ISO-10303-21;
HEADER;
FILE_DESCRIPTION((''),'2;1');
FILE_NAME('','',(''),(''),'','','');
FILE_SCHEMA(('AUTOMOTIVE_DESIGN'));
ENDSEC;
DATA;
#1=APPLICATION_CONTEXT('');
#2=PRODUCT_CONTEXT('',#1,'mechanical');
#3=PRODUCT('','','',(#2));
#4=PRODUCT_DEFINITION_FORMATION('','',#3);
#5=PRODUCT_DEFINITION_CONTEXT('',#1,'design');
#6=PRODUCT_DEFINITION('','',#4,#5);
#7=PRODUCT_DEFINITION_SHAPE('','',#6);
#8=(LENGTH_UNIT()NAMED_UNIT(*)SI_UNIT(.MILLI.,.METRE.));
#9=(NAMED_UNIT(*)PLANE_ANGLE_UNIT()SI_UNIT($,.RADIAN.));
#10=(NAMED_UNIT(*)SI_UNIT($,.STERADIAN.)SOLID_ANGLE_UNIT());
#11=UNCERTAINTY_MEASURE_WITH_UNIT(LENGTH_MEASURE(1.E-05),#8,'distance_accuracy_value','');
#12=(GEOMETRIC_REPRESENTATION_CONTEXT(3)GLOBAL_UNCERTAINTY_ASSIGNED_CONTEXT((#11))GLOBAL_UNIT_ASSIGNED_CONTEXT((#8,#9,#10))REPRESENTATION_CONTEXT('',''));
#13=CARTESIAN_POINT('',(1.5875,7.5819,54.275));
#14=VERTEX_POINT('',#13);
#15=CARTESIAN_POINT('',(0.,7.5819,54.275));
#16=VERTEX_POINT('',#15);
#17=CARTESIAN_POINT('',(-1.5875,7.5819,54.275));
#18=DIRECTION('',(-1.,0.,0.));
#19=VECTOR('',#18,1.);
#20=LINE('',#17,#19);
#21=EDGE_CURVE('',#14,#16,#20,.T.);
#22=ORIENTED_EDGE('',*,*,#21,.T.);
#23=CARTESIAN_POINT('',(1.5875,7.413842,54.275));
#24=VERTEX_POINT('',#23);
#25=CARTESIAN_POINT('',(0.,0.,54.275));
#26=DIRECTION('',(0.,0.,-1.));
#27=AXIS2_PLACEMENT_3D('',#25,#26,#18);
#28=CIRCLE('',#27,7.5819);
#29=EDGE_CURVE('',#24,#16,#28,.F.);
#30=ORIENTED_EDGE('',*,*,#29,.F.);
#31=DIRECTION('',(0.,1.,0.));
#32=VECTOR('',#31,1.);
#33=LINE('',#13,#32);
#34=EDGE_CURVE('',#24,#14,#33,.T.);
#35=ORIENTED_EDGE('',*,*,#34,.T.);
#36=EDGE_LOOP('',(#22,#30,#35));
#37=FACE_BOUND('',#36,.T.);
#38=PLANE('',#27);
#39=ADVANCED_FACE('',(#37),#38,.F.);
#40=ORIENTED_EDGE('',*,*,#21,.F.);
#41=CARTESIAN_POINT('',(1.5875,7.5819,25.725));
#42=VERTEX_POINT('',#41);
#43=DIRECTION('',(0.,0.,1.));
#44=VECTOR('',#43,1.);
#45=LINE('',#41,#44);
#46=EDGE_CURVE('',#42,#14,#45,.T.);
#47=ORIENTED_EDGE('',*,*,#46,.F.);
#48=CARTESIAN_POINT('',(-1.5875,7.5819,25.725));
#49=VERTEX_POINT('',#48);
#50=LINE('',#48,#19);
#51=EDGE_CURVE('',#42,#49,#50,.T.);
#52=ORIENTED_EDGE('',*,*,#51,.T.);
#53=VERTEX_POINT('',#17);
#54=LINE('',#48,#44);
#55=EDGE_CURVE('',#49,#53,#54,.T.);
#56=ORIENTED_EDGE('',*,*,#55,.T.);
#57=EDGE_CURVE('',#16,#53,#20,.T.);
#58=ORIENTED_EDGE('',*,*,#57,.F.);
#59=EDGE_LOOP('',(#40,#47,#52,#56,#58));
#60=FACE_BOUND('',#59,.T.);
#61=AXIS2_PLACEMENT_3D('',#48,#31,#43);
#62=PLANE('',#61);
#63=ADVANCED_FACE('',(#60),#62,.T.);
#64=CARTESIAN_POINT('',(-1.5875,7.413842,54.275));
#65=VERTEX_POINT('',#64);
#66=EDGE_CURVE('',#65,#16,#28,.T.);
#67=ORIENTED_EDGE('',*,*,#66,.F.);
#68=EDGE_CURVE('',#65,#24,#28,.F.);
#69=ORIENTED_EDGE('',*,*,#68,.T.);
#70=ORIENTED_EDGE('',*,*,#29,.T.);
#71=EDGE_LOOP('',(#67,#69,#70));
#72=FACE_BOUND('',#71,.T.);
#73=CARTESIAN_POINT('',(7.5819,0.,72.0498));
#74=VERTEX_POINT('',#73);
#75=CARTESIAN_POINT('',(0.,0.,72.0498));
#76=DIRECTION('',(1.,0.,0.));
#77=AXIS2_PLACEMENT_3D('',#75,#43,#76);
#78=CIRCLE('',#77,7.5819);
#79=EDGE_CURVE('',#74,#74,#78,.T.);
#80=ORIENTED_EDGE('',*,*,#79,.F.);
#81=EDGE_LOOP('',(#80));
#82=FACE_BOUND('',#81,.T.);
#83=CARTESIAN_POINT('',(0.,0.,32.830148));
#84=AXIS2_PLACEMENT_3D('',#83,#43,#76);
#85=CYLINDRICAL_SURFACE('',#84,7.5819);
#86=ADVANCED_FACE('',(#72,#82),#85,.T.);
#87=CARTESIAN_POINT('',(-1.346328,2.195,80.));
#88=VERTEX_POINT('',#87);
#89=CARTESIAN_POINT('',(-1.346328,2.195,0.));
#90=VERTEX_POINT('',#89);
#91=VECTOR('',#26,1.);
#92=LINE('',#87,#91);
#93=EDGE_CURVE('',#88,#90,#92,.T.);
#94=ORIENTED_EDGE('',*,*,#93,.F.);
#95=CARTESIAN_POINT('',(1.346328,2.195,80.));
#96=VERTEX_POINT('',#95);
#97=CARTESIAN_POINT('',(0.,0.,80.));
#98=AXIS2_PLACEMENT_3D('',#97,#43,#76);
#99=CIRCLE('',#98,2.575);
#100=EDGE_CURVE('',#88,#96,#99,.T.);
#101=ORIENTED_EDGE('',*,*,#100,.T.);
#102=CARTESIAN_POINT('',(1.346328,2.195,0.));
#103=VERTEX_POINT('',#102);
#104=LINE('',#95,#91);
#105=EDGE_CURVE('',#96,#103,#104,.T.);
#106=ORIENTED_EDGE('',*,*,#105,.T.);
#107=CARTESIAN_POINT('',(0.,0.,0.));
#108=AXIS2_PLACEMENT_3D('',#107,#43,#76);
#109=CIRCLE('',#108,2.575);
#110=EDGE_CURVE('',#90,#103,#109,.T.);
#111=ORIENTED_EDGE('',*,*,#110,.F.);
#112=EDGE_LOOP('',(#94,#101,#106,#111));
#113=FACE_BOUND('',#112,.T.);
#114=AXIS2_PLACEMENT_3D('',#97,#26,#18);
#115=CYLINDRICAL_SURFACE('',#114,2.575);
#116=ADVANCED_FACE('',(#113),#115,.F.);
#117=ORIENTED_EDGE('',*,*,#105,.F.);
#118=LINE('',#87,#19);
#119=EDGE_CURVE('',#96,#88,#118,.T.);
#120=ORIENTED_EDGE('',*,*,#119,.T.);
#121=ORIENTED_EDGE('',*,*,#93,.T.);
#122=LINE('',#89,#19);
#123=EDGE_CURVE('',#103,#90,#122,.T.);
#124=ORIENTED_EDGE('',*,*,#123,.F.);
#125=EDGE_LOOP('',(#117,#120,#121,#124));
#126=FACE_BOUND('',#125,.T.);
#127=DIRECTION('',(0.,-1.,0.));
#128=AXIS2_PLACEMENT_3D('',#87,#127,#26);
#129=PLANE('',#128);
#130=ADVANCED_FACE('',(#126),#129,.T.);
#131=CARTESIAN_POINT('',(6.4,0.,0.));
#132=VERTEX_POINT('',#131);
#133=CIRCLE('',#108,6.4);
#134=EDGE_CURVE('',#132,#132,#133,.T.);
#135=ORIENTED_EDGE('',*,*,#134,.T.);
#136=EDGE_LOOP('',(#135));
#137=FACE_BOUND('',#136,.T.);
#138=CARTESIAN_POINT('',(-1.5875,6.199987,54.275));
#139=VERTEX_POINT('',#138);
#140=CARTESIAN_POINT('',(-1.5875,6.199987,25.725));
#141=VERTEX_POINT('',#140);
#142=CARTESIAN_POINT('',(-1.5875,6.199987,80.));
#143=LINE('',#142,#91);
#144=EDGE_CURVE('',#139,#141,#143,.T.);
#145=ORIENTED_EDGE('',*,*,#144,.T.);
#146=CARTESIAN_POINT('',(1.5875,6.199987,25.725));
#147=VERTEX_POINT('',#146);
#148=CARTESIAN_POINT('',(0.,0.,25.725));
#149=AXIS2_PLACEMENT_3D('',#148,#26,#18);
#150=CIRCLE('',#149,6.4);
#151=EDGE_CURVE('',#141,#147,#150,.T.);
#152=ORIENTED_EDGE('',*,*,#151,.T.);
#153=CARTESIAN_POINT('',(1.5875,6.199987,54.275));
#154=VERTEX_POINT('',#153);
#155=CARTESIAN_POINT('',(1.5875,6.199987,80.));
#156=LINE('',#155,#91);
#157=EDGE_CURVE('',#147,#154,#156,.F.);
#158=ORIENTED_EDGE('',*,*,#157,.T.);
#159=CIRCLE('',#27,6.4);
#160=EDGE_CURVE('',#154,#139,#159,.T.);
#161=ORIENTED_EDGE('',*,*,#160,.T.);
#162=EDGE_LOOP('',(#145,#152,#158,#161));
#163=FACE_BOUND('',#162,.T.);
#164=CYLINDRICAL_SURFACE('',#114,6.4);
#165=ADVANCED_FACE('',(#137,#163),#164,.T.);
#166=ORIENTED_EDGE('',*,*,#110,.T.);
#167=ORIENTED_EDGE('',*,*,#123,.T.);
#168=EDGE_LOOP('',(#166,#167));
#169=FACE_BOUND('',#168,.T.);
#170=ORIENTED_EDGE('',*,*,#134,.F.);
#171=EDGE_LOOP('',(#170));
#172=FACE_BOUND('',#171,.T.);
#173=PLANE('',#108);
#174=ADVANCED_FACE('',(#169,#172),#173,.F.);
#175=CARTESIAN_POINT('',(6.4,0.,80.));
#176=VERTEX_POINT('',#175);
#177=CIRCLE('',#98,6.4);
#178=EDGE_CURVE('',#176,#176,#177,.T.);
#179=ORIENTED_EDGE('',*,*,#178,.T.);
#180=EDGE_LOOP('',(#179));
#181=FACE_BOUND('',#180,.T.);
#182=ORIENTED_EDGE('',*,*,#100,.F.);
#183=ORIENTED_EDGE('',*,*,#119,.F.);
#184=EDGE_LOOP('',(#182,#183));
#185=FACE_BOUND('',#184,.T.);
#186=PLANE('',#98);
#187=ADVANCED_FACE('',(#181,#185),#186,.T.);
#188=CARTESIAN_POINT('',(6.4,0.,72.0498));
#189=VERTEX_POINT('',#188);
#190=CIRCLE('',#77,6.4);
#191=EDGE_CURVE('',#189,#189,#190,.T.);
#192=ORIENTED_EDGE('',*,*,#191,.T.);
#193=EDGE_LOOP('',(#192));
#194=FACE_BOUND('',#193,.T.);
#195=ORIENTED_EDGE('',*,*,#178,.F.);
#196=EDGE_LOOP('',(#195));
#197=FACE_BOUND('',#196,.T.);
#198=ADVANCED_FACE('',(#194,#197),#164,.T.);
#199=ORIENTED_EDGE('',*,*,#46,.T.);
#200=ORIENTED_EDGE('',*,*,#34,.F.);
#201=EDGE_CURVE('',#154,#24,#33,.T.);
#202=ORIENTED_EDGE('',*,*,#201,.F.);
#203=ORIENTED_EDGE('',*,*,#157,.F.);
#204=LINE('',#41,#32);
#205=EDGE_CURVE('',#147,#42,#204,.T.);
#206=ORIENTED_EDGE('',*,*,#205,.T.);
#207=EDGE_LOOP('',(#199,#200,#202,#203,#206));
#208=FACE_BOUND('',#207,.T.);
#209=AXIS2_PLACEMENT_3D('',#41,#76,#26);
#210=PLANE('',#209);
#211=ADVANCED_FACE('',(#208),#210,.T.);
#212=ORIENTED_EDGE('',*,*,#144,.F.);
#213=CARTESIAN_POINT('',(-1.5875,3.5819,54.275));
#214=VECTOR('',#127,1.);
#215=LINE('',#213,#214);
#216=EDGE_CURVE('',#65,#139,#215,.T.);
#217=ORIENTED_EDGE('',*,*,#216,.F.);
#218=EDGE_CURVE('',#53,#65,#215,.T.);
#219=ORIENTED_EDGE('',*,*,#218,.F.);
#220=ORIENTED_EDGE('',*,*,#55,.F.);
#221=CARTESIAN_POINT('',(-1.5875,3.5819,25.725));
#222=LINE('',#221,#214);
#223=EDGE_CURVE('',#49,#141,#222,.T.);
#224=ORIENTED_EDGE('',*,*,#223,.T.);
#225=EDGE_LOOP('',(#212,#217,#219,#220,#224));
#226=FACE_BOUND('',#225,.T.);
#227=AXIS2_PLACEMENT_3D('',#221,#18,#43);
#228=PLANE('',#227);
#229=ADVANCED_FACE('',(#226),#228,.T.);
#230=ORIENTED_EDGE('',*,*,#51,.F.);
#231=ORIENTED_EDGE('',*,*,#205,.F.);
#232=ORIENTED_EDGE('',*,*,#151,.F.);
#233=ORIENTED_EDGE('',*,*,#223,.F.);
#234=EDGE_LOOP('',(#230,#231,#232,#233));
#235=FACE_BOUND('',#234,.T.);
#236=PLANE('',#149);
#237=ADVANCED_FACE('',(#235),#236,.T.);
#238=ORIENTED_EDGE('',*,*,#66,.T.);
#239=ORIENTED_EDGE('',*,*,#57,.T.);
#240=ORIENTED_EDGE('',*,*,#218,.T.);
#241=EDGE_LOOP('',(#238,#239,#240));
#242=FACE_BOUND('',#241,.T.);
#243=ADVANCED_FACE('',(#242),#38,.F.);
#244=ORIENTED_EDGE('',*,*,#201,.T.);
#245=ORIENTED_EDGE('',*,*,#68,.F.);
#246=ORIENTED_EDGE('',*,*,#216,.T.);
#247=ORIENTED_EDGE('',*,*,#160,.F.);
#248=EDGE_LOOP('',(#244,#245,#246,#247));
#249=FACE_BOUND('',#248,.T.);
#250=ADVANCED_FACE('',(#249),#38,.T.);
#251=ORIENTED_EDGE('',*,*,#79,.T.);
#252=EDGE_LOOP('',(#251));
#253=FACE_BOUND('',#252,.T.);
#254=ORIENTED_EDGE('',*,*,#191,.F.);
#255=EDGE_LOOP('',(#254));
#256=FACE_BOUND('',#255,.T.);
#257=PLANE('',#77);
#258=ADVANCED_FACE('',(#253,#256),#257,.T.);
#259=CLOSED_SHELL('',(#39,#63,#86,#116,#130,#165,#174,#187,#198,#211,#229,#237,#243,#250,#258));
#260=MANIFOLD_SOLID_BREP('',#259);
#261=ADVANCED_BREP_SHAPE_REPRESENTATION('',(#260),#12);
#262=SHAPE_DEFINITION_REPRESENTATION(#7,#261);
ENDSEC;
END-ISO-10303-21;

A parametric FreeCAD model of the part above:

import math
import FreeCAD as App
import Part
import Sketcher
from FreeCAD import Vector


def add_polygon(sketch, points):
    """Adds a closed chain of lines whose ends are joined by coincident constraints."""
    first, n = sketch.GeometryCount, len(points)
    for a, b in zip(points, points[1:] + points[:1]):
        sketch.addGeometry(Part.LineSegment(App.Vector(*a, 0), App.Vector(*b, 0)), False)
    for i in range(n):
        sketch.addConstraint(Sketcher.Constraint("Coincident", first + i, 2, first + (i + 1) % n, 1))

doc = App.newDocument("Part")
body = doc.addObject("PartDesign::Body", "Body")

sketch1 = body.newObject("Sketcher::SketchObject", "Sketch")
sketch1.AttachmentSupport = (doc.getObject("XY_Plane"), [""])
sketch1.MapMode = "FlatFace"
sketch1.addGeometry(Part.Circle(Vector(0, 0, 0), Vector(0, 0, 1), 6.4), False)
sketch1.addGeometry(Part.ArcOfCircle(Part.Circle(Vector(0, 0, 0), Vector(0, 0, 1), 2.6), math.radians(122), math.radians(418)), False)
sketch1.addGeometry(Part.LineSegment(Vector(-1.3, 2.2, 0), Vector(1.3, 2.2, 0)), False)
sketch1.addConstraint(Sketcher.Constraint("Coincident", 1, 1, 2, 1))
sketch1.addConstraint(Sketcher.Constraint("Coincident", 2, 2, 1, 2))
sketch1.addConstraint(Sketcher.Constraint("Horizontal", 2))
sketch1.addConstraint(Sketcher.Constraint("Coincident", 0, 3, -1, 1))
sketch1.addConstraint(Sketcher.Constraint("Coincident", 1, 3, -1, 1))
sketch1.addConstraint(Sketcher.Constraint("Diameter", 0, 12.8))
sketch1.addConstraint(Sketcher.Constraint("Radius", 1, 2.575))
sketch1.addConstraint(Sketcher.Constraint("DistanceY", -1, 1, 1, 1, 2.195))
pad1 = body.newObject("PartDesign::Pad", "Pad")
pad1.Profile = sketch1
pad1.Length = 80

sketch2 = body.newObject("Sketcher::SketchObject", "Sketch001")
sketch2.AttachmentSupport = (doc.getObject("XY_Plane"), [""])
sketch2.MapMode = "FlatFace"
sketch2.AttachmentOffset = App.Placement(Vector(0, 0, 40), App.Rotation())
add_polygon(sketch2, [(-1.6, 7.6), (-1.6, 3.6), (1.6, 3.6), (1.6, 7.6)])
sketch2.addConstraint(Sketcher.Constraint("Vertical", 0))
sketch2.addConstraint(Sketcher.Constraint("Horizontal", 1))
sketch2.addConstraint(Sketcher.Constraint("Vertical", 2))
sketch2.addConstraint(Sketcher.Constraint("Horizontal", 3))
sketch2.addConstraint(Sketcher.Constraint("DistanceY", 0, 2, 0, 1, 4.0))
sketch2.addConstraint(Sketcher.Constraint("DistanceX", 1, 1, 1, 2, 3.175))
sketch2.addConstraint(Sketcher.Constraint("DistanceX", 0, 2, -1, 1, 1.5875))
sketch2.addConstraint(Sketcher.Constraint("DistanceY", -1, 1, 0, 2, 3.5819))
pad2 = body.newObject("PartDesign::Pad", "Pad001")
pad2.Profile = sketch2
pad2.Type = "TwoLengths"
pad2.Length = 14.275
pad2.Length2 = 14.275

sketch3 = body.newObject("Sketcher::SketchObject", "Sketch002")
sketch3.AttachmentSupport = (doc.getObject("XY_Plane"), [""])
sketch3.MapMode = "FlatFace"
sketch3.AttachmentOffset = App.Placement(Vector(0, 0, 72.0498), App.Rotation())
sketch3.addGeometry(Part.Circle(Vector(0, 0, 0), Vector(0, 0, 1), 8), False)
sketch3.addGeometry(Part.Circle(Vector(0, 0, 0), Vector(0, 0, 1), 5), False)
sketch3.addConstraint(Sketcher.Constraint("Coincident", 0, 3, -1, 1))
sketch3.addConstraint(Sketcher.Constraint("Coincident", 1, 3, -1, 1))
sketch3.addConstraint(Sketcher.Constraint("Diameter", 1, 10.0))
sketch3.addConstraint(Sketcher.Constraint("Diameter", 0, 15.1638))
pad3 = body.newObject("PartDesign::Pad", "Pad002")
pad3.Profile = sketch3
pad3.Length = 17.7748
pad3.Reversed = True

doc.recompute()
